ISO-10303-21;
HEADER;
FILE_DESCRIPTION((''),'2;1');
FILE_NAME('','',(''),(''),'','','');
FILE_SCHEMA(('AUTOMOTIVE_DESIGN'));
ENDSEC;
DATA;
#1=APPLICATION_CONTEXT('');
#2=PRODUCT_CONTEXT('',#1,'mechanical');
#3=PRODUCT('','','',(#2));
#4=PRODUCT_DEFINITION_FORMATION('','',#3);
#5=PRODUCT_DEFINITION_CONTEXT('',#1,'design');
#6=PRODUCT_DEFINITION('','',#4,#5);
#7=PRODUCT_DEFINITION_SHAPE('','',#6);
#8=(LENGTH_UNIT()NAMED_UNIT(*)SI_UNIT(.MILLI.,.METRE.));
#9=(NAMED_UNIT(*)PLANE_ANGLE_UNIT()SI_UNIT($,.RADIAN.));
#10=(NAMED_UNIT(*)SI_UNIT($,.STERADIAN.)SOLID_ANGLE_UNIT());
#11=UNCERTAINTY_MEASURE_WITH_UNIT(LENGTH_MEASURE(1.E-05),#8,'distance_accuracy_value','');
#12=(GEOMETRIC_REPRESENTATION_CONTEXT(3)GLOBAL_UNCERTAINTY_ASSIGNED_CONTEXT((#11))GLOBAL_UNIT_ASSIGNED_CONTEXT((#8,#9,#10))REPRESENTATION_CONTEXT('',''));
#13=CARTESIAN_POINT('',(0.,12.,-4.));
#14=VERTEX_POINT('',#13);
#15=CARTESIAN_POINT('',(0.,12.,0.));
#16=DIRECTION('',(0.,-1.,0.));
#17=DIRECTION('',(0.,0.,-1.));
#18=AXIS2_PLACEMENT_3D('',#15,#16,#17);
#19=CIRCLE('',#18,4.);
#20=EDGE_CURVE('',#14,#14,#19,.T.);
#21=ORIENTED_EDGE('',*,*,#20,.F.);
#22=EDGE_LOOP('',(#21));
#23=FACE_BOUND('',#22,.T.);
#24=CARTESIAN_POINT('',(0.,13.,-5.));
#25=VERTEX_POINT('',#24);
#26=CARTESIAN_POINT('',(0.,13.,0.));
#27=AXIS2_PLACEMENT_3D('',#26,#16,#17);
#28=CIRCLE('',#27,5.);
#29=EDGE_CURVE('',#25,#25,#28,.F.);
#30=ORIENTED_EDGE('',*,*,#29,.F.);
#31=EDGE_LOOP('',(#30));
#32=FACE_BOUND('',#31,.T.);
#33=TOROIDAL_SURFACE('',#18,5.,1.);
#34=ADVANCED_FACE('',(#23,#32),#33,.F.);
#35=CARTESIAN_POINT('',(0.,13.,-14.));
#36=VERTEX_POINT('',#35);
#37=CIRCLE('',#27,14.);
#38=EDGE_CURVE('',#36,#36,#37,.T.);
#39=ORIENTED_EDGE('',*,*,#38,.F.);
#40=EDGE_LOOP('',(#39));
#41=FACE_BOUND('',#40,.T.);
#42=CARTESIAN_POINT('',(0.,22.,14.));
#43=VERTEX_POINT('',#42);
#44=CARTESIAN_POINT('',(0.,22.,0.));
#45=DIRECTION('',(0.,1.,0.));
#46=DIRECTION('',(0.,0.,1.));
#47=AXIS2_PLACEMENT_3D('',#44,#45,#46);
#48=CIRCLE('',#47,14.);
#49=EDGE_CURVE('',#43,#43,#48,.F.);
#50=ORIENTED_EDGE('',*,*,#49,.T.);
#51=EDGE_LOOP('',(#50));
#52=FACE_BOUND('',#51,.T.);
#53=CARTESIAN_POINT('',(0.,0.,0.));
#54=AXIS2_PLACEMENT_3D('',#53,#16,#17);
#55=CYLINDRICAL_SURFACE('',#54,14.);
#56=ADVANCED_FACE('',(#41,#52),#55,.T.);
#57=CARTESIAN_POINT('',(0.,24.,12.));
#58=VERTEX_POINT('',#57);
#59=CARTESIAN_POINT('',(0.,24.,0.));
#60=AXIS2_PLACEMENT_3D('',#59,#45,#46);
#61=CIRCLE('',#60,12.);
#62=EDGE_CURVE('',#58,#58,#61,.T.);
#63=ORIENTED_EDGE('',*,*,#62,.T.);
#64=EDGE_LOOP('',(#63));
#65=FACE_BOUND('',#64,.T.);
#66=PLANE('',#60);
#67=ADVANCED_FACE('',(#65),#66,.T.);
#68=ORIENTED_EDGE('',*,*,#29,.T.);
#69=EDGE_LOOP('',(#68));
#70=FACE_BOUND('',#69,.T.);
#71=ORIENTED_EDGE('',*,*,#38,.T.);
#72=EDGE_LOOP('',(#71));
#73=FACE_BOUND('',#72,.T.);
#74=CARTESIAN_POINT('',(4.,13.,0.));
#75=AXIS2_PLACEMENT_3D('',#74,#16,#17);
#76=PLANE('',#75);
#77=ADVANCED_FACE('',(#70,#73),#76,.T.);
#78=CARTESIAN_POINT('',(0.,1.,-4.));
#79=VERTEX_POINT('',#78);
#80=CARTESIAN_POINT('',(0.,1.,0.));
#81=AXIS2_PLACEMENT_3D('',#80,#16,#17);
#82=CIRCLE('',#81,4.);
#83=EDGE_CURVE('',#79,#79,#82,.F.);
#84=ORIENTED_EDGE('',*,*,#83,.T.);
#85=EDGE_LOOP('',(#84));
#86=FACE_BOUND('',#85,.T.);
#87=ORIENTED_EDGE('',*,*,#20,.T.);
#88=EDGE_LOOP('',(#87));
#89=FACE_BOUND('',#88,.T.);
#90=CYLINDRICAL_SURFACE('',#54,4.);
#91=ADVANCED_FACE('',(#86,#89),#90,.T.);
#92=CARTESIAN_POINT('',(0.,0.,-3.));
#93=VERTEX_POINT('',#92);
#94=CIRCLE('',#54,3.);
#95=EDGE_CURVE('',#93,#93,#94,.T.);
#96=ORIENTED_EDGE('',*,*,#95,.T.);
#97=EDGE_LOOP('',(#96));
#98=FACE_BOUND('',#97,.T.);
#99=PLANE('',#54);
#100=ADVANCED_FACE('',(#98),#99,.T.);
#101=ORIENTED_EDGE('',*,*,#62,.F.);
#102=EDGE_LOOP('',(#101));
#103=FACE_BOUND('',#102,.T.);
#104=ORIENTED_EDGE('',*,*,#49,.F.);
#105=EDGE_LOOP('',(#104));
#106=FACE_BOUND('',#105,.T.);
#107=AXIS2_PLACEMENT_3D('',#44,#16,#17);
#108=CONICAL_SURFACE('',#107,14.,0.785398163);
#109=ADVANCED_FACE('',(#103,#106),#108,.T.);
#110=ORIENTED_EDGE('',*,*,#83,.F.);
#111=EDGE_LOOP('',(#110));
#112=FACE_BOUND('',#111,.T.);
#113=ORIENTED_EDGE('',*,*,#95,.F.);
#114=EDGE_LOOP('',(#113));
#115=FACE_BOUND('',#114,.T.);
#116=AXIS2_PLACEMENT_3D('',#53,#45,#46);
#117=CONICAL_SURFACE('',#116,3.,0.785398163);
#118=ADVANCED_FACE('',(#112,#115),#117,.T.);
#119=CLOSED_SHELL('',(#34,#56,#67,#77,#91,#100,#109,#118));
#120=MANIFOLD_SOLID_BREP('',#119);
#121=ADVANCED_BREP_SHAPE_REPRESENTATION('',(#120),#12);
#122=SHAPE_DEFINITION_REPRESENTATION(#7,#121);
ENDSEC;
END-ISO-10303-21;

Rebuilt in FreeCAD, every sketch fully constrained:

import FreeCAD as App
import Part
import Sketcher

V = App.Vector
Q = App.Units.Quantity


def edges_at(feature, points):
    """Names of the edges that pass closest to the given points."""
    edges = feature.Shape.Edges
    near = lambda p: min(range(len(edges)), key=lambda i: edges[i].distToShape(Part.Vertex(*p))[0])
    return sorted({f"Edge{near(p) + 1}" for p in points})


def add_polygon(sketch, points):
    """Adds a closed chain of lines whose ends are joined by coincident constraints."""
    first, n = sketch.GeometryCount, len(points)
    for a, b in zip(points, points[1:] + points[:1]):
        sketch.addGeometry(Part.LineSegment(App.Vector(*a, 0), App.Vector(*b, 0)), False)
    for i in range(n):
        sketch.addConstraint(Sketcher.Constraint("Coincident", first + i, 2, first + (i + 1) % n, 1))

doc = App.newDocument("Part")
body = doc.addObject("PartDesign::Body", "Body")

# Sketch on XY plane
sketch1 = body.newObject("Sketcher::SketchObject", "Sketch")
sketch1.AttachmentSupport = (doc.getObject("XY_Plane"), [""])
sketch1.MapMode = "FlatFace"
add_polygon(sketch1, [(0, 24), (0, 0), (4, 0), (4, 13), (14, 13), (14, 24)])  # lines 0-5
sketch1.addConstraint([
    Sketcher.Constraint("Vertical", 0),
    Sketcher.Constraint("Horizontal", 1),
    Sketcher.Constraint("Vertical", 2),
    Sketcher.Constraint("Horizontal", 3),
    Sketcher.Constraint("Vertical", 4),
    Sketcher.Constraint("Horizontal", 5),
    Sketcher.Constraint("Coincident", 0, 2, -1, 1),
    Sketcher.Constraint("DistanceX", 1, 1, 1, 2, Q("4 mm")),
    Sketcher.Constraint("DistanceX", 3, 1, 3, 2, Q("10 mm")),
    Sketcher.Constraint("DistanceY", 0, 2, 0, 1, Q("24 mm")),
    Sketcher.Constraint("DistanceY", 2, 1, 2, 2, Q("13 mm")),
])
revolution = body.newObject("PartDesign::Revolution", "Revolution")
revolution.Profile = sketch1
revolution.ReferenceAxis = (sketch1, ["V_Axis"])
revolution.Angle = 360
doc.recompute()

fillet = body.newObject("PartDesign::Fillet", "Fillet")
fillet.Base = (revolution, edges_at(revolution, [(0, 13, 4)]))
fillet.Radius = 1
doc.recompute()

chamfer = body.newObject("PartDesign::Chamfer", "Chamfer")
chamfer.Base = (fillet, edges_at(fillet, [(0, 24, 14)]))
chamfer.Size = 2
doc.recompute()

chamfer2 = body.newObject("PartDesign::Chamfer", "Chamfer001")
chamfer2.Base = (chamfer, edges_at(chamfer, [(0, 0, 4)]))
chamfer2.Size = 1

doc.recompute()
